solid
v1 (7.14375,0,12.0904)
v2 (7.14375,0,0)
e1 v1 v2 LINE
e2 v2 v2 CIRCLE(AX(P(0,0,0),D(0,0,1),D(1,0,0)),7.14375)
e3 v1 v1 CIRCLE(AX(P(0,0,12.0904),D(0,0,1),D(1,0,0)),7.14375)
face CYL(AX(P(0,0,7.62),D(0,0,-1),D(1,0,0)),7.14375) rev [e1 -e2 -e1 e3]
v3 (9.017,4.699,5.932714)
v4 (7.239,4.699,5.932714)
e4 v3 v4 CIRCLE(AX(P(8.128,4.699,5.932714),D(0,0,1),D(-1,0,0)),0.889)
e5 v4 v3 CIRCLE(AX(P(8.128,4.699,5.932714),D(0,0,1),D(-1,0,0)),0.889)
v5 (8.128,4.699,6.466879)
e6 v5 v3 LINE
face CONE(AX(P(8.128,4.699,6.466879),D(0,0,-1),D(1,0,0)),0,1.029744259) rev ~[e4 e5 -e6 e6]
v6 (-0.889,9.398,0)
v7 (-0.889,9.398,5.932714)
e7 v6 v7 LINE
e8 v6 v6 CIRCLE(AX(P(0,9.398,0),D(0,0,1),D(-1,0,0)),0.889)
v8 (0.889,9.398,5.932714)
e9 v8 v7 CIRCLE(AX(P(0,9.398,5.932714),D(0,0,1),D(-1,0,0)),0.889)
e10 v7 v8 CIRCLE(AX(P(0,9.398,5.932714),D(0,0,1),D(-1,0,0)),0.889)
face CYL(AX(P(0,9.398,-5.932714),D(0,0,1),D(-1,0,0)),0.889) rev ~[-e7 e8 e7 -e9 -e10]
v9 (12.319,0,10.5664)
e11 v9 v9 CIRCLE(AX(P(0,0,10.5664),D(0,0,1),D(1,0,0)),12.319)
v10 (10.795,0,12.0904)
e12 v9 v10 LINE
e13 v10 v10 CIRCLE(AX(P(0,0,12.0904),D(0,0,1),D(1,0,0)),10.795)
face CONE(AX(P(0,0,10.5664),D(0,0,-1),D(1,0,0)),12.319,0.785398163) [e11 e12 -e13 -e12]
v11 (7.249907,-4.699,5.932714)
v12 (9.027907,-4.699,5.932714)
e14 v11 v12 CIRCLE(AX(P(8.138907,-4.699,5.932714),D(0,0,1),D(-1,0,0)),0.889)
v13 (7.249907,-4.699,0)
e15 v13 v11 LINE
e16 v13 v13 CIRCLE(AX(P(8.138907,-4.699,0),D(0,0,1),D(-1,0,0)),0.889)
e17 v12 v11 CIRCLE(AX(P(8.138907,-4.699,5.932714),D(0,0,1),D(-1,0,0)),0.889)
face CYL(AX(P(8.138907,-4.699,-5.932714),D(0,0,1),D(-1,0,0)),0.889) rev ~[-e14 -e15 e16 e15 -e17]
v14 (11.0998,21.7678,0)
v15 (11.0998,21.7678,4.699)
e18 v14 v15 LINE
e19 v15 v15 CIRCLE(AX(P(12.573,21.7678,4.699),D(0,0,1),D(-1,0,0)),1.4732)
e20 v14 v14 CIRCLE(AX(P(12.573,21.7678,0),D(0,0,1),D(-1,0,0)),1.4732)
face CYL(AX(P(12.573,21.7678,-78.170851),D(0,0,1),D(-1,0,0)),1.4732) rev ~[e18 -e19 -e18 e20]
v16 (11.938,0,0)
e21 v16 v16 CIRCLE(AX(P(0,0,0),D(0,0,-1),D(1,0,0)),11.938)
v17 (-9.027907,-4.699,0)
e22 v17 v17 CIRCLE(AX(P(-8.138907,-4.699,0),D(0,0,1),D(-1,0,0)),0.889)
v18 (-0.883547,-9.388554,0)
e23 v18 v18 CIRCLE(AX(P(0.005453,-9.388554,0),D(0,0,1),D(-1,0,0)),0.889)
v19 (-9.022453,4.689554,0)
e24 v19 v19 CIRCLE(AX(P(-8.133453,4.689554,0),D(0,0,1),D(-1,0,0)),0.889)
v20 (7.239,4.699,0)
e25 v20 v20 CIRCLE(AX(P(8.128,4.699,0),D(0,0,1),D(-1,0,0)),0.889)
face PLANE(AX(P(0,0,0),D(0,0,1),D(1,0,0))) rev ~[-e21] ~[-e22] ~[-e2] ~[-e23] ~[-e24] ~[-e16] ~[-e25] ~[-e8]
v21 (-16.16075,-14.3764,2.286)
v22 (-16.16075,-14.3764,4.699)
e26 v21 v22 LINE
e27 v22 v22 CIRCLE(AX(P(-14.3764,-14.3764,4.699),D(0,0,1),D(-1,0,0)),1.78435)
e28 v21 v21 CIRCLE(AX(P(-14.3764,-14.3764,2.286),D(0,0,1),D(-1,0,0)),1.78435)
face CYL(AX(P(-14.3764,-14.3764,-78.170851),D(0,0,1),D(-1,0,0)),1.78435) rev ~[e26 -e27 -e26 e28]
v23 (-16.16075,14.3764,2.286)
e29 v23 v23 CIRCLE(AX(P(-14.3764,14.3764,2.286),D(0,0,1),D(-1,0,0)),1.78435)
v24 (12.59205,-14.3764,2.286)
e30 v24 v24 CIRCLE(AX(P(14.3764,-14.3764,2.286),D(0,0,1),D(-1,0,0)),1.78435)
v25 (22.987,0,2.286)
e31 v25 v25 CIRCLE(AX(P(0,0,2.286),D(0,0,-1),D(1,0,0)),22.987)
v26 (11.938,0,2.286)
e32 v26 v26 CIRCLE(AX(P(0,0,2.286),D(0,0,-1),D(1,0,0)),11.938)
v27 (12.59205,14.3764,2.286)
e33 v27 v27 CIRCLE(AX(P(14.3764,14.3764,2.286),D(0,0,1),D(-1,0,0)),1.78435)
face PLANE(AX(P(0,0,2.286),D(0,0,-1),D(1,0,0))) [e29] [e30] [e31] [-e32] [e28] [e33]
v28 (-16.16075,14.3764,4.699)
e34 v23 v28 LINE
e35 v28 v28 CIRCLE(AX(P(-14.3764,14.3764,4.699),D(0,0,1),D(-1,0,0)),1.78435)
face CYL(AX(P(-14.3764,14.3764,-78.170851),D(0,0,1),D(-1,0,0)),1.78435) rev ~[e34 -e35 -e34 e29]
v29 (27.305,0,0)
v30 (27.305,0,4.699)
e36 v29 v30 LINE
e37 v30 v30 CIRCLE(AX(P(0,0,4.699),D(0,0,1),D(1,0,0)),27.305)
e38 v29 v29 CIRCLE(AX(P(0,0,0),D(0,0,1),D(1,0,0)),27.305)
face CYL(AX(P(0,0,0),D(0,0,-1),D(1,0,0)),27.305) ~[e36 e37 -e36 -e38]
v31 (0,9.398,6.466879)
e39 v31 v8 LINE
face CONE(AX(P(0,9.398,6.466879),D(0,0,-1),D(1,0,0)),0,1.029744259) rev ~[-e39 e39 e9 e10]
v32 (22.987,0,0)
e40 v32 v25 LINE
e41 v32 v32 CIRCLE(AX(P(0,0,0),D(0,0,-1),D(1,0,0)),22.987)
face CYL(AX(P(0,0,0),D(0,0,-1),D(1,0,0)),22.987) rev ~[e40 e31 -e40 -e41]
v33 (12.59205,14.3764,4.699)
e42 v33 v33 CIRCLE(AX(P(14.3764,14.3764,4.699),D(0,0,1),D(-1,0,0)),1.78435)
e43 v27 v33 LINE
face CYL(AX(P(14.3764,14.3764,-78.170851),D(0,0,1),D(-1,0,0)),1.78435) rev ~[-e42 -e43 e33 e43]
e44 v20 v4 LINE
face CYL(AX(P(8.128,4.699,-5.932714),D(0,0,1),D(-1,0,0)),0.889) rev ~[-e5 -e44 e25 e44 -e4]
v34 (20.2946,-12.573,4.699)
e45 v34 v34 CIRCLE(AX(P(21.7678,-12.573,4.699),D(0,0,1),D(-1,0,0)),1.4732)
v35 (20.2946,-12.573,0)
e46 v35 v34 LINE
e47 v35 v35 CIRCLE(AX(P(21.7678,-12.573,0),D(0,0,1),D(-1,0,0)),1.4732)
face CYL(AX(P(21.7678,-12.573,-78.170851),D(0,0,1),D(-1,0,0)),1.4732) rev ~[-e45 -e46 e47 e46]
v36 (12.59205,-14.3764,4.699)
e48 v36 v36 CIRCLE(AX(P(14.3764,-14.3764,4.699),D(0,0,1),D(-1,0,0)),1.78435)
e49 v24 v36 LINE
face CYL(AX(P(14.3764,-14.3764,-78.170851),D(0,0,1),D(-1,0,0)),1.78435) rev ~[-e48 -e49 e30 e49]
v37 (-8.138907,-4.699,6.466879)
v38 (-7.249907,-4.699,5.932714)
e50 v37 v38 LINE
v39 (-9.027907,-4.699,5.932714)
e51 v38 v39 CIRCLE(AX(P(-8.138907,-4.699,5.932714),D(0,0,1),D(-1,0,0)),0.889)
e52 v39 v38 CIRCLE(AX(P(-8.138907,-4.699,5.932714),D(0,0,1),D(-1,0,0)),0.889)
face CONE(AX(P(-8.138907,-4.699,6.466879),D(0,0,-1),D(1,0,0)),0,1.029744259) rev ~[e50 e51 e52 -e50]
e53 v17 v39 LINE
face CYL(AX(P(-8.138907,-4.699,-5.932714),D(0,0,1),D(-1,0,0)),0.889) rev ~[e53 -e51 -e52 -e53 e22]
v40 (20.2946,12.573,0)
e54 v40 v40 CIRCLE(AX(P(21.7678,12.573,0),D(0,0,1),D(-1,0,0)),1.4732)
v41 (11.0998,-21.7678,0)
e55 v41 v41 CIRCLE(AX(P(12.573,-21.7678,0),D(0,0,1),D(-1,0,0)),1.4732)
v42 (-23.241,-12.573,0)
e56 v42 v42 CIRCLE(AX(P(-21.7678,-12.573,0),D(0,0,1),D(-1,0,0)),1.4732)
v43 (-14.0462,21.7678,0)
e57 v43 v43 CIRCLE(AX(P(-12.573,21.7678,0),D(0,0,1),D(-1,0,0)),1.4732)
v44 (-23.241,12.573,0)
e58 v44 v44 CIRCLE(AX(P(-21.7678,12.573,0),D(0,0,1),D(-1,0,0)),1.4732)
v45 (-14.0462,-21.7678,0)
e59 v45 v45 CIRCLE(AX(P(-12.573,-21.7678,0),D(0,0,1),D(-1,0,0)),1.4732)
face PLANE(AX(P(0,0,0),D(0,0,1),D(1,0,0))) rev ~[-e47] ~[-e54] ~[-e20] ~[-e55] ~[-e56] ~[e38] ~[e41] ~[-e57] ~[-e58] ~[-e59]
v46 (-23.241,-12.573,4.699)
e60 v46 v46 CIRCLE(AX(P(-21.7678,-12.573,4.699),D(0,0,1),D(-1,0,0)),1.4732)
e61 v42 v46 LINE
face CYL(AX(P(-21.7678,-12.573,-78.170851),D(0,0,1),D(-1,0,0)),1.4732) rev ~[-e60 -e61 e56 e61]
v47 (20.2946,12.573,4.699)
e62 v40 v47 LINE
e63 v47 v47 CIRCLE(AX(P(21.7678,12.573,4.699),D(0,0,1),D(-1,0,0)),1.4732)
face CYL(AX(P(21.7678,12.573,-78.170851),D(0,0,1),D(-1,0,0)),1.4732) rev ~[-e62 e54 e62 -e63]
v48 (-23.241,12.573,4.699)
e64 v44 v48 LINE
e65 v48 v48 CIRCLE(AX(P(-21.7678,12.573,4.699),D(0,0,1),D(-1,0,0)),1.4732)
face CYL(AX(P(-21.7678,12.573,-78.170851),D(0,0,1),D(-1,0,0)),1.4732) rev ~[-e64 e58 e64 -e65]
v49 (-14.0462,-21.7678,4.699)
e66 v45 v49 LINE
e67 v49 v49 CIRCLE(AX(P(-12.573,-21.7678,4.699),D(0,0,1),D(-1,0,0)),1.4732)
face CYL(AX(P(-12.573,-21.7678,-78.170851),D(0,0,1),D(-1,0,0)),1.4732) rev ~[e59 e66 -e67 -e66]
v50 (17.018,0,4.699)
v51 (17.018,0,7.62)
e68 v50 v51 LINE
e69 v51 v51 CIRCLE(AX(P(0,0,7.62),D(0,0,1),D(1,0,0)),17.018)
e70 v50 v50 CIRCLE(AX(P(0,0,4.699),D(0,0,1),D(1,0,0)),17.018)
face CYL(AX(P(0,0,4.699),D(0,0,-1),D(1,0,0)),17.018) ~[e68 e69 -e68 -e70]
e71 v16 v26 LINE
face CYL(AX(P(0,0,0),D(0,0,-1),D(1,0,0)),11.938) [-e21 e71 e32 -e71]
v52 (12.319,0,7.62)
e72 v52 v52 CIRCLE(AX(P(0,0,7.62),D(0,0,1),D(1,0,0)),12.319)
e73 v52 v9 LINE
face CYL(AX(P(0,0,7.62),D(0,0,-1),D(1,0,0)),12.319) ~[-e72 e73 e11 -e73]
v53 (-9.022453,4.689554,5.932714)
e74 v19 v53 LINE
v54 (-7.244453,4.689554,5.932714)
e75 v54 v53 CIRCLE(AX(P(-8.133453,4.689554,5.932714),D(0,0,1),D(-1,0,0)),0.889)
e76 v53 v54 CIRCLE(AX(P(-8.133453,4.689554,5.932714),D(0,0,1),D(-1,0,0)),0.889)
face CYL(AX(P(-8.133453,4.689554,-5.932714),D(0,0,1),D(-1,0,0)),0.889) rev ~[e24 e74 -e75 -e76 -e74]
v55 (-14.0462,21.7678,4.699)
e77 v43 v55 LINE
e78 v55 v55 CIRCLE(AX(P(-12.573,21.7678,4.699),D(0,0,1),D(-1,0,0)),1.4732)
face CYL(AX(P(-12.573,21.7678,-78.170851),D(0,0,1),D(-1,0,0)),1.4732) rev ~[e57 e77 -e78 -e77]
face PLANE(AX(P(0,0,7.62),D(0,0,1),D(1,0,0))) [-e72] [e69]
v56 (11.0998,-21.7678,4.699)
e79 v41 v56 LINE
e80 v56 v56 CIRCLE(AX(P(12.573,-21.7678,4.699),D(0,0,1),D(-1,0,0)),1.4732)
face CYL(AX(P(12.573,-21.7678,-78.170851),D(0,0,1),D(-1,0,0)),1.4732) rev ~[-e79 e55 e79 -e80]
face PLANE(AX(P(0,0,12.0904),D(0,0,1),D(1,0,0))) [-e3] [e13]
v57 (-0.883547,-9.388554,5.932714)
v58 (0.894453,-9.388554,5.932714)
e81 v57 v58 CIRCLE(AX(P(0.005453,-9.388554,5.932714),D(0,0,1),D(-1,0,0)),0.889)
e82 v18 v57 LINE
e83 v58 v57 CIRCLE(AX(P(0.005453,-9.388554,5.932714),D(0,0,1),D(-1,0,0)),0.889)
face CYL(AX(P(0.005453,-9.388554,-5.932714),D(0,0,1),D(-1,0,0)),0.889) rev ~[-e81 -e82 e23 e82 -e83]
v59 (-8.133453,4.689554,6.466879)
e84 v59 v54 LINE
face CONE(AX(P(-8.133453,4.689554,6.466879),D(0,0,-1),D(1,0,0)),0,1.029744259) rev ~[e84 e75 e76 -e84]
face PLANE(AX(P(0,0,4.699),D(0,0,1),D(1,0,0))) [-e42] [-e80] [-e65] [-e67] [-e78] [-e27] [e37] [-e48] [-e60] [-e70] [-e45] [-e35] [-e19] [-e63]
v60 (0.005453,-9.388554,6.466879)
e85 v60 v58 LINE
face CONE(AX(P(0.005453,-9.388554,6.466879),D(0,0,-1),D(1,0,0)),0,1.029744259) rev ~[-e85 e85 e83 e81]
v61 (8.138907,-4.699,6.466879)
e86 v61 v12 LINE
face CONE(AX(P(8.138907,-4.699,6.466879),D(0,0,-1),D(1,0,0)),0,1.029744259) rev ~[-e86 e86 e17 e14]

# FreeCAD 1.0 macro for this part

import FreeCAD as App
import Part
import Sketcher
Q = App.Units.Quantity


def edges_at(feature, points):
    """Names of the edges that pass closest to the given points."""
    edges = feature.Shape.Edges
    near = lambda p: min(range(len(edges)), key=lambda i: edges[i].distToShape(Part.Vertex(*p))[0])
    return sorted({f"Edge{near(p) + 1}" for p in points})

doc = App.newDocument("Part")
body = doc.addObject("PartDesign::Body", "Body")

# Sketch on XY plane
sketch1 = body.newObject("Sketcher::SketchObject", "Sketch")
sketch1.AttachmentSupport = (doc.getObject("XY_Plane"), [""])
sketch1.MapMode = "FlatFace"
sketch1.addGeometry([
    Part.Circle(App.Vector(0, 0, 0), App.Vector(0, 0, 1), 27.305),
    Part.Circle(App.Vector(0, 0, 0), App.Vector(0, 0, 1), 7.14375),
], False)
sketch1.addConstraint([
    Sketcher.Constraint("Coincident", 0, 3, -1, 1),
    Sketcher.Constraint("Coincident", 1, 3, -1, 1),
    Sketcher.Constraint("Diameter", 0, Q("2.15 in")),
    Sketcher.Constraint("Diameter", 1, Q("0.5625 in")),
])
pad1 = body.newObject("PartDesign::Pad", "Pad")
pad1.Profile = sketch1
pad1.Length = Q("0.185 in")

# Sketch on XY plane
sketch2 = body.newObject("Sketcher::SketchObject", "Sketch001")
sketch2.AttachmentSupport = (doc.getObject("XY_Plane"), [""])
sketch2.MapMode = "FlatFace"
sketch2.AttachmentOffset = App.Placement(App.Vector(0, 0, 0.185 * 25.4), App.Rotation())
sketch2.addGeometry([
    Part.Circle(App.Vector(0, 0, 0), App.Vector(0, 0, 1), 17.018),
    Part.Circle(App.Vector(0, 0, 0), App.Vector(0, 0, 1), 7.14375),
], False)
sketch2.addConstraint([
    Sketcher.Constraint("Coincident", 0, 3, -1, 1),
    Sketcher.Constraint("Coincident", 1, 3, -1, 1),
    Sketcher.Constraint("Diameter", 0, Q("1.34 in")),
    Sketcher.Constraint("Diameter", 1, Q("0.5625 in")),
])
pad2 = body.newObject("PartDesign::Pad", "Pad001")
pad2.Profile = sketch2
pad2.Length = Q("0.115 in")

# Sketch on XY plane
sketch3 = body.newObject("Sketcher::SketchObject", "Sketch002")
sketch3.AttachmentSupport = (doc.getObject("XY_Plane"), [""])
sketch3.MapMode = "FlatFace"
sketch3.AttachmentOffset = App.Placement(App.Vector(0, 0, 0.3 * 25.4), App.Rotation())
sketch3.addGeometry([
    Part.Circle(App.Vector(0, 0, 0), App.Vector(0, 0, 1), 12.319),
    Part.Circle(App.Vector(0, 0, 0), App.Vector(0, 0, 1), 7.14375),
], False)
sketch3.addConstraint([
    Sketcher.Constraint("Coincident", 0, 3, -1, 1),
    Sketcher.Constraint("Coincident", 1, 3, -1, 1),
    Sketcher.Constraint("Diameter", 0, Q("0.97 in")),
    Sketcher.Constraint("Diameter", 1, Q("0.5625 in")),
])
pad3 = body.newObject("PartDesign::Pad", "Pad002")
pad3.Profile = sketch3
pad3.Length = Q("0.176 in")
doc.recompute()

chamfer = body.newObject("PartDesign::Chamfer", "Chamfer")
chamfer.Base = (pad3, edges_at(pad3, [(-12.319, 0, 12.09)]))
chamfer.ChamferType = "Two distances"
chamfer.Size = Q("0.06 in")
chamfer.Size2 = Q("0.06 in")

# Sketch on XY plane
sketch4 = body.newObject("Sketcher::SketchObject", "Sketch003")
sketch4.AttachmentSupport = (doc.getObject("XY_Plane"), [""])
sketch4.MapMode = "FlatFace"
sketch4.addGeometry([
    Part.Circle(App.Vector(0, 0, 0), App.Vector(0, 0, 1), 22.987),
    Part.Circle(App.Vector(0, 0, 0), App.Vector(0, 0, 1), 11.938),
], False)
sketch4.addConstraint([
    Sketcher.Constraint("Coincident", 0, 3, -1, 1),
    Sketcher.Constraint("Coincident", 1, 3, -1, 1),
    Sketcher.Constraint("Diameter", 0, Q("1.81 in")),
    Sketcher.Constraint("Diameter", 1, Q("0.94 in")),
])
pocket1 = body.newObject("PartDesign::Pocket", "Pocket")
pocket1.Profile = sketch4
pocket1.Length = Q("0.09 in")
pocket1.Reversed = True

# Sketch on XY plane
sketch5 = body.newObject("Sketcher::SketchObject", "Sketch004")
sketch5.AttachmentSupport = (doc.getObject("XY_Plane"), [""])
sketch5.MapMode = "FlatFace"
sketch5.addGeometry([
    Part.Circle(App.Vector(-8.138907, -4.699, 0), App.Vector(0, 0, 1), 0.889),  # 0
    Part.Circle(App.Vector(-8.133453, 4.689554, 0), App.Vector(0, 0, 1), 0.889),  # 1
    Part.Circle(App.Vector(8.138907, -4.699, 0), App.Vector(0, 0, 1), 0.889),  # 2
    Part.Circle(App.Vector(0, 0, 0), App.Vector(0, 0, 1), 0.889),  # 3
    Part.Circle(App.Vector(0.005453, -9.388554, 0), App.Vector(0, 0, 1), 0.889),  # 4
    Part.Circle(App.Vector(0, 9.398, 0), App.Vector(0, 0, 1), 0.889),  # 5
    Part.Circle(App.Vector(8.128, 4.699, 0), App.Vector(0, 0, 1), 0.889),  # 6
], False)
sketch5.addConstraint([
    Sketcher.Constraint("Coincident", 3, 3, -1, 1),
    Sketcher.Constraint("Equal", 0, 1),
    Sketcher.Constraint("Equal", 1, 2),
    Sketcher.Constraint("Equal", 2, 3),
    Sketcher.Constraint("Equal", 3, 4),
    Sketcher.Constraint("Equal", 4, 5),
    Sketcher.Constraint("Equal", 5, 6),
    Sketcher.Constraint("Symmetric", 0, 3, 2, 3, -2),
    Sketcher.Constraint("PointOnObject", 5, 3, -2),
    Sketcher.Constraint("Diameter", 0, Q("0.07 in")),
    Sketcher.Constraint("DistanceY", -1, 1, 5, 3, Q("0.37 in")),
    Sketcher.Constraint("DistanceX", -1, 1, 6, 3, Q("0.32 in")),
    Sketcher.Constraint("DistanceY", 2, 3, 6, 3, Q("0.37 in")),
    Sketcher.Constraint("DistanceY", 0, 3, -1, 1, Q("0.185 in")),
    Sketcher.Constraint("DistanceX", 1, 3, 2, 3, Q("16.27236 mm")),
    Sketcher.Constraint("DistanceX", 0, 3, 4, 3, Q("8.14436 mm")),
    Sketcher.Constraint("DistanceY", 4, 3, 1, 3, Q("14.078109 mm")),
    Sketcher.Constraint("DistanceX", 0, 3, -1, 1, Q("8.138907 mm")),
    Sketcher.Constraint("DistanceY", -1, 1, 1, 3, Q("4.689554 mm")),
])
doc.recompute()
hole = body.newObject("PartDesign::Hole", "Hole")
hole.Profile = sketch5
hole.ThreadType = "None"
hole.Diameter = Q("0.07 in")
hole.DepthType = "Dimension"
hole.Depth = 5.932714
hole.DrillPoint = "Angled"
hole.DrillPointAngle = 118
hole.Reversed = True

# Sketch on XY plane
sketch6 = body.newObject("Sketcher::SketchObject", "Sketch005")
sketch6.AttachmentSupport = (doc.getObject("XY_Plane"), [""])
sketch6.MapMode = "FlatFace"
sketch6.addGeometry([
    Part.Circle(App.Vector(14.3764, -14.3764, 0), App.Vector(0, 0, 1), 1.78435),
    Part.Circle(App.Vector(14.3764, 14.3764, 0), App.Vector(0, 0, 1), 1.78435),
    Part.Circle(App.Vector(-14.3764, 14.3764, 0), App.Vector(0, 0, 1), 1.78435),
    Part.Circle(App.Vector(-14.3764, -14.3764, 0), App.Vector(0, 0, 1), 1.78435),
], False)
sketch6.addConstraint([
    Sketcher.Constraint("Equal", 0, 1),
    Sketcher.Constraint("Equal", 1, 2),
    Sketcher.Constraint("Equal", 2, 3),
    Sketcher.Constraint("Symmetric", 0, 3, 2, 3, -1, 1),
    Sketcher.Constraint("Symmetric", 1, 3, 3, 3, -1, 1),
    Sketcher.Constraint("Symmetric", 1, 3, 2, 3, -2),
    Sketcher.Constraint("Diameter", 0, Q("0.1405 in")),
    Sketcher.Constraint("DistanceX", -1, 1, 0, 3, Q("0.566 in")),
    Sketcher.Constraint("DistanceY", 0, 3, -1, 1, Q("0.566 in")),
])
doc.recompute()
hole2 = body.newObject("PartDesign::Hole", "Hole001")
hole2.Profile = sketch6
hole2.ThreadType = "None"
hole2.Diameter = Q("0.1405 in")
hole2.DepthType = "ThroughAll"
hole2.Reversed = True

# Sketch on XY plane
sketch7 = body.newObject("Sketcher::SketchObject", "Sketch006")
sketch7.AttachmentSupport = (doc.getObject("XY_Plane"), [""])
sketch7.MapMode = "FlatFace"
sketch7.addGeometry([
    Part.Circle(App.Vector(12.573, -21.7678, 0), App.Vector(0, 0, 1), 1.4732),  # 0
    Part.Circle(App.Vector(21.7678, -12.573, 0), App.Vector(0, 0, 1), 1.4732),  # 1
    Part.Circle(App.Vector(21.7678, 12.573, 0), App.Vector(0, 0, 1), 1.4732),  # 2
    Part.Circle(App.Vector(12.573, 21.7678, 0), App.Vector(0, 0, 1), 1.4732),  # 3
    Part.Circle(App.Vector(-12.573, 21.7678, 0), App.Vector(0, 0, 1), 1.4732),  # 4
    Part.Circle(App.Vector(-21.7678, 12.573, 0), App.Vector(0, 0, 1), 1.4732),  # 5
    Part.Circle(App.Vector(-21.7678, -12.573, 0), App.Vector(0, 0, 1), 1.4732),  # 6
    Part.Circle(App.Vector(-12.573, -21.7678, 0), App.Vector(0, 0, 1), 1.4732),  # 7
], False)
sketch7.addConstraint([
    Sketcher.Constraint("Equal", 0, 1),
    Sketcher.Constraint("Equal", 1, 2),
    Sketcher.Constraint("Equal", 2, 3),
    Sketcher.Constraint("Equal", 3, 4),
    Sketcher.Constraint("Equal", 4, 5),
    Sketcher.Constraint("Equal", 5, 6),
    Sketcher.Constraint("Equal", 6, 7),
    Sketcher.Constraint("Symmetric", 0, 3, 4, 3, -1, 1),
    Sketcher.Constraint("Symmetric", 1, 3, 5, 3, -1, 1),
    Sketcher.Constraint("Symmetric", 2, 3, 6, 3, -1, 1),
    Sketcher.Constraint("Symmetric", 3, 3, 7, 3, -1, 1),
    Sketcher.Constraint("Symmetric", 3, 3, 4, 3, -2),
    Sketcher.Constraint("Symmetric", 2, 3, 5, 3, -2),
    Sketcher.Constraint("Diameter", 0, Q("0.116 in")),
    Sketcher.Constraint("DistanceY", 1, 3, 2, 3, Q("0.99 in")),
    Sketcher.Constraint("DistanceX", 4, 3, 3, 3, Q("0.99 in")),
    Sketcher.Constraint("DistanceY", 0, 3, -1, 1, Q("0.857 in")),
    Sketcher.Constraint("DistanceX", -1, 1, 1, 3, Q("0.857 in")),
])
doc.recompute()
hole3 = body.newObject("PartDesign::Hole", "Hole002")
hole3.Profile = sketch7
hole3.ThreadType = "None"
hole3.Diameter = Q("0.116 in")
hole3.DepthType = "ThroughAll"
hole3.Reversed = True

doc.recompute()
